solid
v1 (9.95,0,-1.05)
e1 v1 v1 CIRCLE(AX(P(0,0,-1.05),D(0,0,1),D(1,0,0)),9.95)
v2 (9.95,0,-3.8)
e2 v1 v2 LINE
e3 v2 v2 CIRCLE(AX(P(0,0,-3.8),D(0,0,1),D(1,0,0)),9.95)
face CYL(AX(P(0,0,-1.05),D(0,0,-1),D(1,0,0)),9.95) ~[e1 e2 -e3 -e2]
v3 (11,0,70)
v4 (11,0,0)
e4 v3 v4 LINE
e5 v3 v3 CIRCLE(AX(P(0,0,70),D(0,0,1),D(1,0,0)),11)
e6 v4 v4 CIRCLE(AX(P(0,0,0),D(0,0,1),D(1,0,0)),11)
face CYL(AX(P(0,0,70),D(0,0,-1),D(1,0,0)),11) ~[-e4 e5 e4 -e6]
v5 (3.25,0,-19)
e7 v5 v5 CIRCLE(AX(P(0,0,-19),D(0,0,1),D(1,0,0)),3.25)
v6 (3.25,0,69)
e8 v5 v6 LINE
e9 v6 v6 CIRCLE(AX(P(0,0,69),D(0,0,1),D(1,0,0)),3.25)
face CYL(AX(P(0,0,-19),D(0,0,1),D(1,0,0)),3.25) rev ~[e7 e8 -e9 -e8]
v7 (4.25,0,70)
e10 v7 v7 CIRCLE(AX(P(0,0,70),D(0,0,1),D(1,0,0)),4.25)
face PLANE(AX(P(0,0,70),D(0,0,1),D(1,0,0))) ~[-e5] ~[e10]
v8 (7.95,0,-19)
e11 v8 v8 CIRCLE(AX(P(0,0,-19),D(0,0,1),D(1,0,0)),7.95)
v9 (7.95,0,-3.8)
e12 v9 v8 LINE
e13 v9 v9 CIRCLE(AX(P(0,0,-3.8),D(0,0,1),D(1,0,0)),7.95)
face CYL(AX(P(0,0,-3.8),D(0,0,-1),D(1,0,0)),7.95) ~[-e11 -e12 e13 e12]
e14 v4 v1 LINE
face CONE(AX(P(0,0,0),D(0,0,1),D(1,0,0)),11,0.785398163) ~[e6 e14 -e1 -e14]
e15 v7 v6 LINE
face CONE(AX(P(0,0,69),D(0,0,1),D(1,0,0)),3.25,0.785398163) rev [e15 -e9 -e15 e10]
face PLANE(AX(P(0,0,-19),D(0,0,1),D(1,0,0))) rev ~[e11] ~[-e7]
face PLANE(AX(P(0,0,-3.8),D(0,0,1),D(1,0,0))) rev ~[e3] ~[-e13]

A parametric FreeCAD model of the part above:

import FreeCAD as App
import Part
import Sketcher
from FreeCAD import Vector
Q = App.Units.Quantity


def edges_at(feature, points):
    """Names of the edges that pass closest to the given points."""
    edges = feature.Shape.Edges
    near = lambda p: min(range(len(edges)), key=lambda i: edges[i].distToShape(Part.Vertex(*p))[0])
    return sorted({f"Edge{near(p) + 1}" for p in points})


def add_polygon(sketch, points):
    """Adds a closed chain of lines whose ends are joined by coincident constraints."""
    first, n = sketch.GeometryCount, len(points)
    for a, b in zip(points, points[1:] + points[:1]):
        sketch.addGeometry(Part.LineSegment(App.Vector(*a, 0), App.Vector(*b, 0)), False)
    for i in range(n):
        sketch.addConstraint(Sketcher.Constraint("Coincident", first + i, 2, first + (i + 1) % n, 1))

doc = App.newDocument("Part")
body = doc.addObject("PartDesign::Body", "Body")

sketch1 = body.newObject("Sketcher::SketchObject", "Sketch")
sketch1.AttachmentSupport = (doc.getObject("XZ_Plane"), [""])
sketch1.MapMode = "FlatFace"
add_polygon(sketch1, [(11, 70), (3.2, 70), (3.2, -19), (8, -19), (8, -3.8), (9.9, -3.8), (9.9, -1.1), (11, 0)])
sketch1.addConstraint([
    Sketcher.Constraint("Horizontal", 0),
    Sketcher.Constraint("Vertical", 1),
    Sketcher.Constraint("Horizontal", 2),
    Sketcher.Constraint("Vertical", 3),
    Sketcher.Constraint("Horizontal", 4),
    Sketcher.Constraint("Vertical", 5),
    Sketcher.Constraint("Vertical", 7),
    Sketcher.Constraint("PointOnObject", 6, 2, -1),
    Sketcher.Constraint("DistanceX", 4, 1, 4, 2, 2.0),
    Sketcher.Constraint("DistanceY", 1, 2, 1, 1, 89.0),
    Sketcher.Constraint("DistanceY", 7, 1, 7, 2, 70.0),
    Sketcher.Constraint("Angle", 6, Q("45 deg")),
    Sketcher.Constraint("DistanceX", 2, 1, 2, 2, 4.7),
    Sketcher.Constraint("DistanceY", 3, 1, 3, 2, 15.2),
    Sketcher.Constraint("DistanceX", -1, 1, 6, 2, 11.0),
    Sketcher.Constraint("DistanceX", 0, 2, 0, 1, 7.75),
])
revolution = body.newObject("PartDesign::Revolution", "Revolution")
revolution.Profile = sketch1
revolution.ReferenceAxis = (sketch1, ["V_Axis"])
revolution.Angle = 360
doc.recompute()

chamfer = body.newObject("PartDesign::Chamfer", "Chamfer")
chamfer.Base = (revolution, edges_at(revolution, [(-3.25, 0, 70)]))
chamfer.Size = 1

doc.recompute()
